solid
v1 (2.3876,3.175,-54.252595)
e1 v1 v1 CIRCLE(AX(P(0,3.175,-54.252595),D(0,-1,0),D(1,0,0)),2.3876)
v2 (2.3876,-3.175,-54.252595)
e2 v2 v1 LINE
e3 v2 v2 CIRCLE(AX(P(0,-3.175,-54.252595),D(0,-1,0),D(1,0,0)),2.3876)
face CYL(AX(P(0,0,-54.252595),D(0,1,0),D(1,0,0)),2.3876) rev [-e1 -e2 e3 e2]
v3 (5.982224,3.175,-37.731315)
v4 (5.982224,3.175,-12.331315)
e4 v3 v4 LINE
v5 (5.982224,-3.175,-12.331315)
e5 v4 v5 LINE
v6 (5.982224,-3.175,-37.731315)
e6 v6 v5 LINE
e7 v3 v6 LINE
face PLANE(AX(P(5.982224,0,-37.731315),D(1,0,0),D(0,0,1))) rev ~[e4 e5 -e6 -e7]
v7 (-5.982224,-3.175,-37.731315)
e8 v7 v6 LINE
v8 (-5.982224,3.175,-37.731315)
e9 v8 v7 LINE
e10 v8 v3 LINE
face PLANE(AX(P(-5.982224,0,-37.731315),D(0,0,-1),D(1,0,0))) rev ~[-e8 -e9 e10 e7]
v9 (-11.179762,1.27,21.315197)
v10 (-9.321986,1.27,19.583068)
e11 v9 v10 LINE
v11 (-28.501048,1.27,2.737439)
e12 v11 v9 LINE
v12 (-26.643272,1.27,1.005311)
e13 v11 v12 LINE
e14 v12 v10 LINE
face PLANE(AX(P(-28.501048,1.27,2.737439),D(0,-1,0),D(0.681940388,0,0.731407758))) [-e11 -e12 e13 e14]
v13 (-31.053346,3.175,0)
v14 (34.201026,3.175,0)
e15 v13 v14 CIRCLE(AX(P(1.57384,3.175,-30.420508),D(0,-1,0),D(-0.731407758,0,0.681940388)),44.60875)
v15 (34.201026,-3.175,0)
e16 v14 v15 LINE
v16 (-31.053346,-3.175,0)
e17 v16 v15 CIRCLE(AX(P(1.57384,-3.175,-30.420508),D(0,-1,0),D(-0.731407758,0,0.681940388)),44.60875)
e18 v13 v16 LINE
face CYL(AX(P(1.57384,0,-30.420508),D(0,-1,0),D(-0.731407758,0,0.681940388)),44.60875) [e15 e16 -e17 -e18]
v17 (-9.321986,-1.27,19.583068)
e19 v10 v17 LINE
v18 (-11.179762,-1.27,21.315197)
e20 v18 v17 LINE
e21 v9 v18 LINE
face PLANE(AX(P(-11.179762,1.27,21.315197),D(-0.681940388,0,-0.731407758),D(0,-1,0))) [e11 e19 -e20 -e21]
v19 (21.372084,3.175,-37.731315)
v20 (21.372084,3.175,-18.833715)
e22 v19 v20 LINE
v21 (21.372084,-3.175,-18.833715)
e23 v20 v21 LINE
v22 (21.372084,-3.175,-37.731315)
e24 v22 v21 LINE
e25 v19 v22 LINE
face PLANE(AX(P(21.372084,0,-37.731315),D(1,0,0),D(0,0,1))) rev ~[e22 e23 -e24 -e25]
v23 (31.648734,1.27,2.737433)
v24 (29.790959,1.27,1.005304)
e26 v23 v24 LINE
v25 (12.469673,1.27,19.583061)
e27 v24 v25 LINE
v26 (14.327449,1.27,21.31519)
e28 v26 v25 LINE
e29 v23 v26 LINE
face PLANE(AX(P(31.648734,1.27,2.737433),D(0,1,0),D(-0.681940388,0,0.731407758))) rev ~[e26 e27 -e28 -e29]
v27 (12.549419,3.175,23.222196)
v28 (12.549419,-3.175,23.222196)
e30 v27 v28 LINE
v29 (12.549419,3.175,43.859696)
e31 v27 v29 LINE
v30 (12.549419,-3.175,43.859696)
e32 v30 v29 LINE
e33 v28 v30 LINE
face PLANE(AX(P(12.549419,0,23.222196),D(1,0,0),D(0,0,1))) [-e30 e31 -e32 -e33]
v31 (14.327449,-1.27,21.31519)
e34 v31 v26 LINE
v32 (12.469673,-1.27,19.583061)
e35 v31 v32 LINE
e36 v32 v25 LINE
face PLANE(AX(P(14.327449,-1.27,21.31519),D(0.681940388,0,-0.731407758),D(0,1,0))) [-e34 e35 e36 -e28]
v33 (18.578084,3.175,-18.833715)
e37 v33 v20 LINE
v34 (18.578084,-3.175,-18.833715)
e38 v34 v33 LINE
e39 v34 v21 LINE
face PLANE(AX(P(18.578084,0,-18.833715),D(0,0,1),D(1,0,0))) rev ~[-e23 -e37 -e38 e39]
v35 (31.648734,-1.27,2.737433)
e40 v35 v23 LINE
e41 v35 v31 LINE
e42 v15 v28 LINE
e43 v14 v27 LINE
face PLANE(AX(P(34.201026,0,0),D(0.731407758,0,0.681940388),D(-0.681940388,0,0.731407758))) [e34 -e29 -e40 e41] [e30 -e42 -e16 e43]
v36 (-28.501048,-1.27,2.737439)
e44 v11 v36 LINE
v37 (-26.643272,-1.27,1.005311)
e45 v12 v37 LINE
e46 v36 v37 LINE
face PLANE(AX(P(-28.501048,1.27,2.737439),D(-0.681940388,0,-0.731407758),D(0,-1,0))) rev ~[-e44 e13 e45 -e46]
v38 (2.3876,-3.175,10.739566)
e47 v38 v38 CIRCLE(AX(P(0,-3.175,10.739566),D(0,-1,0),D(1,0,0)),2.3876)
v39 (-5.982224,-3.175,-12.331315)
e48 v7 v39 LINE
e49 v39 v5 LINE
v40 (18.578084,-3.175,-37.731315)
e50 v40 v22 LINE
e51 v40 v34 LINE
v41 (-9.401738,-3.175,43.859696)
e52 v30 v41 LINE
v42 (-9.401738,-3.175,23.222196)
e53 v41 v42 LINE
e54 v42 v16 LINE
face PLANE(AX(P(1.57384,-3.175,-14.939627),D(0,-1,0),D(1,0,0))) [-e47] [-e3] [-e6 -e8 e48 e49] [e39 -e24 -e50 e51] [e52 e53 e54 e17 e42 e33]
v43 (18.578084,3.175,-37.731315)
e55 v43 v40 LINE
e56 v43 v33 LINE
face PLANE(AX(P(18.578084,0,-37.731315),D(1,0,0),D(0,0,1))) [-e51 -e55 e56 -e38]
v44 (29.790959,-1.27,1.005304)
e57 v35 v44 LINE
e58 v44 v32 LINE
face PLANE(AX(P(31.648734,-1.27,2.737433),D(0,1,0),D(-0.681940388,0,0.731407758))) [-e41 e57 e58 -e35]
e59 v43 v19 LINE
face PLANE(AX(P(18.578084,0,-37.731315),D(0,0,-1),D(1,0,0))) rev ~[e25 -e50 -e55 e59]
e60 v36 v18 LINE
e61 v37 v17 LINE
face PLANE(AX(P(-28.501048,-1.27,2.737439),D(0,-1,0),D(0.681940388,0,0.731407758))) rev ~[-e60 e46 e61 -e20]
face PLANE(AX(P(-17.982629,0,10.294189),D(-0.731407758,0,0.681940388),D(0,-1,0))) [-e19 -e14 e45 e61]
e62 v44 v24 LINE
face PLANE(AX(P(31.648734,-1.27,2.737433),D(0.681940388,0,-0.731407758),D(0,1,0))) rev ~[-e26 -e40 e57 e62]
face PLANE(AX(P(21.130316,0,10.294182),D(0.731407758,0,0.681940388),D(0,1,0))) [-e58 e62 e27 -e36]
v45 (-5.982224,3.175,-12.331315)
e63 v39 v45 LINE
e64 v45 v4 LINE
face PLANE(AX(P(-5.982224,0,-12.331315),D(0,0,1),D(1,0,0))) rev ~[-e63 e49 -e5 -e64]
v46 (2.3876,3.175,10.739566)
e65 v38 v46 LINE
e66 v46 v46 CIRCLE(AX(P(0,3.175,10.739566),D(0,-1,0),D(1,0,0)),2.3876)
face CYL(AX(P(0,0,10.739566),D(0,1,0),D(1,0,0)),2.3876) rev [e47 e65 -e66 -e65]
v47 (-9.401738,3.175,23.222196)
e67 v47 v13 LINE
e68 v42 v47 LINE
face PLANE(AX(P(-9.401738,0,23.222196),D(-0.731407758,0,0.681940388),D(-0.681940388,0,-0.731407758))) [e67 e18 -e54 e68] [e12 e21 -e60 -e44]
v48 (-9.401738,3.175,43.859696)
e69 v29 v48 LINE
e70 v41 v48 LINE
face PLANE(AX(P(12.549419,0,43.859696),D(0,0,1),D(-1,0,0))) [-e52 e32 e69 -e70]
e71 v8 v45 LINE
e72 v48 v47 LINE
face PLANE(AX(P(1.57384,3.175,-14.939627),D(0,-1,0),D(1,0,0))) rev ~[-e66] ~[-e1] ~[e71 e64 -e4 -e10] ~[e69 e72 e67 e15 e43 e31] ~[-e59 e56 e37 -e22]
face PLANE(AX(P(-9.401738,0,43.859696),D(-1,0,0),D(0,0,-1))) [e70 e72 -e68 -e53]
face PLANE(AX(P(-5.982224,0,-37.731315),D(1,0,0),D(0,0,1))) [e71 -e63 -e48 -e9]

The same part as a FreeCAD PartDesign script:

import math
import FreeCAD as App
import Part
import Sketcher

V = App.Vector
Q = App.Units.Quantity

doc = App.newDocument("Part")
body = doc.addObject("PartDesign::Body", "Body")

sketch1 = body.newObject("Sketcher::SketchObject", "Sketch")
sketch1.AttachmentSupport = (doc.getObject("XZ_Plane"), [""])
sketch1.MapMode = "FlatFace"
sketch1.addGeometry([
    Part.LineSegment(V(-9.4, 23.2, 0), V(-31.1, 0, 0)),
    Part.ArcOfCircle(Part.Circle(V(1.6, -30.4, 0), V(0, 0, 1), 44.6), math.radians(137), math.radians(403)),
    Part.LineSegment(V(34.2, 0, 0), V(12.5, 23.2, 0)),
    Part.LineSegment(V(12.5, 23.2, 0), V(12.5, 43.9, 0)),
    Part.LineSegment(V(12.5, 43.9, 0), V(-9.4, 43.9, 0)),
    Part.LineSegment(V(-9.4, 43.9, 0), V(-9.4, 23.2, 0)),
    Part.Circle(V(0, -54.3, 0), V(0, 0, 1), 2.4),
    Part.LineSegment(V(6, -37.7, 0), V(-6, -37.7, 0)),
    Part.LineSegment(V(-6, -37.7, 0), V(-6, -12.3, 0)),
    Part.LineSegment(V(-6, -12.3, 0), V(6, -12.3, 0)),
    Part.LineSegment(V(6, -12.3, 0), V(6, -37.7, 0)),
    Part.LineSegment(V(21.4, -37.7, 0), V(18.6, -37.7, 0)),
    Part.LineSegment(V(18.6, -37.7, 0), V(18.6, -18.8, 0)),
    Part.LineSegment(V(18.6, -18.8, 0), V(21.4, -18.8, 0)),
    Part.LineSegment(V(21.4, -18.8, 0), V(21.4, -37.7, 0)),
    Part.Circle(V(0, 10.7, 0), V(0, 0, 1), 2.4),
], False)
sketch1.addConstraint([
    Sketcher.Constraint("Tangent", 0, 2, 1, 1),
    Sketcher.Constraint("Tangent", 1, 2, 2, 1),
    Sketcher.Constraint("Coincident", 2, 2, 3, 1),
    Sketcher.Constraint("Coincident", 3, 2, 4, 1),
    Sketcher.Constraint("Coincident", 4, 2, 5, 1),
    Sketcher.Constraint("Coincident", 5, 2, 0, 1),
    Sketcher.Constraint("Coincident", 7, 2, 8, 1),
    Sketcher.Constraint("Coincident", 8, 2, 9, 1),
    Sketcher.Constraint("Coincident", 9, 2, 10, 1),
    Sketcher.Constraint("Coincident", 10, 2, 7, 1),
    Sketcher.Constraint("Coincident", 11, 2, 12, 1),
    Sketcher.Constraint("Coincident", 12, 2, 13, 1),
    Sketcher.Constraint("Coincident", 13, 2, 14, 1),
    Sketcher.Constraint("Coincident", 14, 2, 11, 1),
    Sketcher.Constraint("Vertical", 3),
    Sketcher.Constraint("Horizontal", 4),
    Sketcher.Constraint("Vertical", 5),
    Sketcher.Constraint("Horizontal", 7),
    Sketcher.Constraint("Vertical", 8),
    Sketcher.Constraint("Horizontal", 9),
    Sketcher.Constraint("Vertical", 10),
    Sketcher.Constraint("Horizontal", 11),
    Sketcher.Constraint("Vertical", 12),
    Sketcher.Constraint("Horizontal", 13),
    Sketcher.Constraint("Vertical", 14),
    Sketcher.Constraint("Equal", 6, 15),
    Sketcher.Constraint("PointOnObject", 6, 3, -2),
    Sketcher.Constraint("PointOnObject", 15, 3, -2),
    Sketcher.Constraint("PointOnObject", 0, 2, -1),
    Sketcher.Constraint("PointOnObject", 1, 2, -1),
    Sketcher.Constraint("Horizontal", 2, 2, 5, 2),
    Sketcher.Constraint("Horizontal", 10, 2, 11, 2),
    Sketcher.Constraint("DistanceY", 8, 1, 8, 2, Q("1 in")),
    Sketcher.Constraint("Diameter", 6, Q("0.188 in")),
    Sketcher.Constraint("DistanceX", 11, 2, 11, 1, Q("0.11 in")),
    Sketcher.Constraint("Distance", 0, Q("1.25 in")),
    Sketcher.Constraint("DistanceY", 3, 1, 3, 2, Q("0.8125 in")),
    Sketcher.Constraint("DistanceY", 12, 1, 12, 2, Q("0.744 in")),
    Sketcher.Constraint("Radius", 1, 44.60875),
    Sketcher.Constraint("DistanceX", 10, 2, 11, 2, Q("0.4959 in")),
    Sketcher.Constraint("DistanceX", 4, 2, 4, 1, 21.951157),
    Sketcher.Constraint("DistanceX", 7, 2, 7, 1, 11.964448),
    Sketcher.Constraint("DistanceX", -1, 1, 1, 3, 1.57384),
    Sketcher.Constraint("DistanceY", 6, 3, 15, 3, 64.992161),
    Sketcher.Constraint("DistanceY", 15, 3, 2, 2, 12.48263),
    Sketcher.Constraint("DistanceY", 6, 3, 7, 2, 16.52128),
    Sketcher.Constraint("DistanceX", 0, 2, 7, 2, 25.071122),
])
pad1 = body.newObject("PartDesign::Pad", "Pad")
pad1.Profile = sketch1
pad1.Length = Q("0.25 in")
pad1.Midplane = True

sketch2 = body.newObject("Sketcher::SketchObject", "Sketch001")
sketch2.Placement = App.Placement(V(-16.612214, 0, 15.488679), App.Rotation(V(0, -1, 0), V(0.681940388, 0, 0.731407758), V(-0.731407758, 0, 0.681940388), "ZXY"))
sketch2.addGeometry([
    Part.LineSegment(V(-1.3, 8, 0), V(-1.3, -17.4, 0)),
    Part.LineSegment(V(-1.3, -17.4, 0), V(1.3, -17.4, 0)),
    Part.LineSegment(V(1.3, -17.4, 0), V(1.3, 8, 0)),
    Part.LineSegment(V(1.3, 8, 0), V(-1.3, 8, 0)),
], False)
sketch2.addConstraint([
    Sketcher.Constraint("Coincident", 0, 2, 1, 1),
    Sketcher.Constraint("Coincident", 1, 2, 2, 1),
    Sketcher.Constraint("Coincident", 2, 2, 3, 1),
    Sketcher.Constraint("Coincident", 3, 2, 0, 1),
    Sketcher.Constraint("Vertical", 0),
    Sketcher.Constraint("Horizontal", 1),
    Sketcher.Constraint("Vertical", 2),
    Sketcher.Constraint("Horizontal", 3),
    Sketcher.Constraint("DistanceY", 0, 2, 0, 1, Q("1 in")),
    Sketcher.Constraint("DistanceX", 1, 1, 1, 2, Q("0.1 in")),
    Sketcher.Constraint("DistanceX", 0, 2, -1, 1, Q("0.05 in")),
    Sketcher.Constraint("DistanceY", 0, 2, -1, 1, 17.433831),
])
pocket1 = body.newObject("PartDesign::Pocket", "Pocket")
pocket1.Profile = sketch2
pocket1.Length = Q("0.1 in")

sketch3 = body.newObject("Sketcher::SketchObject", "Sketch002")
sketch3.Placement = App.Placement(V(18.296089, 0, 17.058668), App.Rotation(V(0, 1, 0), V(-0.681940388, 0, 0.731407758), V(0.731407758, 0, 0.681940388), "ZXY"))
sketch3.addGeometry([
    Part.LineSegment(V(-1.3, 5.8, 0), V(-1.3, -19.6, 0)),
    Part.LineSegment(V(-1.3, -19.6, 0), V(1.3, -19.6, 0)),
    Part.LineSegment(V(1.3, -19.6, 0), V(1.3, 5.8, 0)),
    Part.LineSegment(V(1.3, 5.8, 0), V(-1.3, 5.8, 0)),
], False)
sketch3.addConstraint([
    Sketcher.Constraint("Coincident", 0, 2, 1, 1),
    Sketcher.Constraint("Coincident", 1, 2, 2, 1),
    Sketcher.Constraint("Coincident", 2, 2, 3, 1),
    Sketcher.Constraint("Coincident", 3, 2, 0, 1),
    Sketcher.Constraint("Vertical", 0),
    Sketcher.Constraint("Horizontal", 1),
    Sketcher.Constraint("Vertical", 2),
    Sketcher.Constraint("Horizontal", 3),
    Sketcher.Constraint("DistanceY", 0, 2, 0, 1, Q("1 in")),
    Sketcher.Constraint("DistanceX", 1, 1, 1, 2, Q("0.1 in")),
    Sketcher.Constraint("DistanceX", 0, 2, -1, 1, Q("0.05 in")),
    Sketcher.Constraint("DistanceY", 0, 2, -1, 1, 19.580371),
])
pocket2 = body.newObject("PartDesign::Pocket", "Pocket001")
pocket2.Profile = sketch3
pocket2.Length = Q("0.1 in")

doc.recompute()
